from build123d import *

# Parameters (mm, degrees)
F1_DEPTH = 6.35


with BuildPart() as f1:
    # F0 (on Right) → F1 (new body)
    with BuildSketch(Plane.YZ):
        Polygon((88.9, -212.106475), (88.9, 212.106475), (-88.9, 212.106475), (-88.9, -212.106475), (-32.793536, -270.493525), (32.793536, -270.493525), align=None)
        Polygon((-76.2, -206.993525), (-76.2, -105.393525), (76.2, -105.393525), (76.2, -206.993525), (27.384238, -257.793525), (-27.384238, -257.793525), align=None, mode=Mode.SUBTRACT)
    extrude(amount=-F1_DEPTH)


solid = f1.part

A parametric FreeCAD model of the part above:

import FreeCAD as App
import Part
import Sketcher

V = App.Vector
Q = App.Units.Quantity


def add_polygon(sketch, points):
    """Adds a closed chain of lines whose ends are joined by coincident constraints."""
    first, n = sketch.GeometryCount, len(points)
    for a, b in zip(points, points[1:] + points[:1]):
        sketch.addGeometry(Part.LineSegment(App.Vector(*a, 0), App.Vector(*b, 0)), False)
    for i in range(n):
        sketch.addConstraint(Sketcher.Constraint("Coincident", first + i, 2, first + (i + 1) % n, 1))

doc = App.newDocument("Part")
body = doc.addObject("PartDesign::Body", "Body")

# Sketch on YZ plane
sketch1 = doc.addObject("Sketcher::SketchObject", "Sketch")
body.addObject(sketch1)
sketch1.AttachmentSupport = (doc.YZ_Plane, [""])
sketch1.MapMode = "FlatFace"
add_polygon(sketch1, [(89, -212), (89, 212), (-89, 212), (-89, -212), (-33, -270), (33, -270)])  # lines 0-5
add_polygon(sketch1, [(-27, -258), (-76, -207), (-76, -105), (76, -105), (76, -207), (27, -258)])  # lines 6-11
sketch1.addConstraint(Sketcher.Constraint("Vertical", 0))
sketch1.addConstraint(Sketcher.Constraint("Horizontal", 1))
sketch1.addConstraint(Sketcher.Constraint("Vertical", 2))
sketch1.addConstraint(Sketcher.Constraint("Horizontal", 4))
sketch1.addConstraint(Sketcher.Constraint("Vertical", 7))
sketch1.addConstraint(Sketcher.Constraint("Horizontal", 8))
sketch1.addConstraint(Sketcher.Constraint("Vertical", 9))
sketch1.addConstraint(Sketcher.Constraint("Horizontal", 11))
sketch1.addConstraint(Sketcher.Constraint("Symmetric", 0, 2, 2, 2, -1, 1))
sketch1.addConstraint(Sketcher.Constraint("Symmetric", 6, 2, 9, 2, -2))
sketch1.addConstraint(Sketcher.Constraint("Parallel", 3, 6))
sketch1.addConstraint(Sketcher.Constraint("Parallel", 5, 10))
sketch1.addConstraint(Sketcher.Constraint("Horizontal", 2, 2, 5, 2))
sketch1.addConstraint(Sketcher.Constraint("Equal", 3, 5))
sketch1.addConstraint(Sketcher.Constraint("DistanceX", 1, 2, 1, 1, Q("7 in")))
sketch1.addConstraint(Sketcher.Constraint("DistanceX", 8, 1, 8, 2, Q("6 in")))
sketch1.addConstraint(Sketcher.Constraint("DistanceY", 7, 1, 7, 2, Q("4 in")))
sketch1.addConstraint(Sketcher.Constraint("DistanceY", 3, 2, 1, 2, Q("19 in")))
sketch1.addConstraint(Sketcher.Constraint("DistanceY", 10, 2, 9, 2, Q("2 in")))
sketch1.addConstraint(Sketcher.Constraint("DistanceY", 3, 2, 6, 2, Q("2.5 in")))
sketch1.addConstraint(Sketcher.Constraint("Distance", 3, Q("3.188 in")))
sketch1.addConstraint(Sketcher.Constraint("DistanceY", 0, 1, 0, 2, 424.21295))
pad1 = doc.addObject("PartDesign::Pad", "Pad")
body.addObject(pad1)
pad1.Profile = sketch1
pad1.Length = Q("0.25 in")
pad1.Reversed = True

doc.recompute()
